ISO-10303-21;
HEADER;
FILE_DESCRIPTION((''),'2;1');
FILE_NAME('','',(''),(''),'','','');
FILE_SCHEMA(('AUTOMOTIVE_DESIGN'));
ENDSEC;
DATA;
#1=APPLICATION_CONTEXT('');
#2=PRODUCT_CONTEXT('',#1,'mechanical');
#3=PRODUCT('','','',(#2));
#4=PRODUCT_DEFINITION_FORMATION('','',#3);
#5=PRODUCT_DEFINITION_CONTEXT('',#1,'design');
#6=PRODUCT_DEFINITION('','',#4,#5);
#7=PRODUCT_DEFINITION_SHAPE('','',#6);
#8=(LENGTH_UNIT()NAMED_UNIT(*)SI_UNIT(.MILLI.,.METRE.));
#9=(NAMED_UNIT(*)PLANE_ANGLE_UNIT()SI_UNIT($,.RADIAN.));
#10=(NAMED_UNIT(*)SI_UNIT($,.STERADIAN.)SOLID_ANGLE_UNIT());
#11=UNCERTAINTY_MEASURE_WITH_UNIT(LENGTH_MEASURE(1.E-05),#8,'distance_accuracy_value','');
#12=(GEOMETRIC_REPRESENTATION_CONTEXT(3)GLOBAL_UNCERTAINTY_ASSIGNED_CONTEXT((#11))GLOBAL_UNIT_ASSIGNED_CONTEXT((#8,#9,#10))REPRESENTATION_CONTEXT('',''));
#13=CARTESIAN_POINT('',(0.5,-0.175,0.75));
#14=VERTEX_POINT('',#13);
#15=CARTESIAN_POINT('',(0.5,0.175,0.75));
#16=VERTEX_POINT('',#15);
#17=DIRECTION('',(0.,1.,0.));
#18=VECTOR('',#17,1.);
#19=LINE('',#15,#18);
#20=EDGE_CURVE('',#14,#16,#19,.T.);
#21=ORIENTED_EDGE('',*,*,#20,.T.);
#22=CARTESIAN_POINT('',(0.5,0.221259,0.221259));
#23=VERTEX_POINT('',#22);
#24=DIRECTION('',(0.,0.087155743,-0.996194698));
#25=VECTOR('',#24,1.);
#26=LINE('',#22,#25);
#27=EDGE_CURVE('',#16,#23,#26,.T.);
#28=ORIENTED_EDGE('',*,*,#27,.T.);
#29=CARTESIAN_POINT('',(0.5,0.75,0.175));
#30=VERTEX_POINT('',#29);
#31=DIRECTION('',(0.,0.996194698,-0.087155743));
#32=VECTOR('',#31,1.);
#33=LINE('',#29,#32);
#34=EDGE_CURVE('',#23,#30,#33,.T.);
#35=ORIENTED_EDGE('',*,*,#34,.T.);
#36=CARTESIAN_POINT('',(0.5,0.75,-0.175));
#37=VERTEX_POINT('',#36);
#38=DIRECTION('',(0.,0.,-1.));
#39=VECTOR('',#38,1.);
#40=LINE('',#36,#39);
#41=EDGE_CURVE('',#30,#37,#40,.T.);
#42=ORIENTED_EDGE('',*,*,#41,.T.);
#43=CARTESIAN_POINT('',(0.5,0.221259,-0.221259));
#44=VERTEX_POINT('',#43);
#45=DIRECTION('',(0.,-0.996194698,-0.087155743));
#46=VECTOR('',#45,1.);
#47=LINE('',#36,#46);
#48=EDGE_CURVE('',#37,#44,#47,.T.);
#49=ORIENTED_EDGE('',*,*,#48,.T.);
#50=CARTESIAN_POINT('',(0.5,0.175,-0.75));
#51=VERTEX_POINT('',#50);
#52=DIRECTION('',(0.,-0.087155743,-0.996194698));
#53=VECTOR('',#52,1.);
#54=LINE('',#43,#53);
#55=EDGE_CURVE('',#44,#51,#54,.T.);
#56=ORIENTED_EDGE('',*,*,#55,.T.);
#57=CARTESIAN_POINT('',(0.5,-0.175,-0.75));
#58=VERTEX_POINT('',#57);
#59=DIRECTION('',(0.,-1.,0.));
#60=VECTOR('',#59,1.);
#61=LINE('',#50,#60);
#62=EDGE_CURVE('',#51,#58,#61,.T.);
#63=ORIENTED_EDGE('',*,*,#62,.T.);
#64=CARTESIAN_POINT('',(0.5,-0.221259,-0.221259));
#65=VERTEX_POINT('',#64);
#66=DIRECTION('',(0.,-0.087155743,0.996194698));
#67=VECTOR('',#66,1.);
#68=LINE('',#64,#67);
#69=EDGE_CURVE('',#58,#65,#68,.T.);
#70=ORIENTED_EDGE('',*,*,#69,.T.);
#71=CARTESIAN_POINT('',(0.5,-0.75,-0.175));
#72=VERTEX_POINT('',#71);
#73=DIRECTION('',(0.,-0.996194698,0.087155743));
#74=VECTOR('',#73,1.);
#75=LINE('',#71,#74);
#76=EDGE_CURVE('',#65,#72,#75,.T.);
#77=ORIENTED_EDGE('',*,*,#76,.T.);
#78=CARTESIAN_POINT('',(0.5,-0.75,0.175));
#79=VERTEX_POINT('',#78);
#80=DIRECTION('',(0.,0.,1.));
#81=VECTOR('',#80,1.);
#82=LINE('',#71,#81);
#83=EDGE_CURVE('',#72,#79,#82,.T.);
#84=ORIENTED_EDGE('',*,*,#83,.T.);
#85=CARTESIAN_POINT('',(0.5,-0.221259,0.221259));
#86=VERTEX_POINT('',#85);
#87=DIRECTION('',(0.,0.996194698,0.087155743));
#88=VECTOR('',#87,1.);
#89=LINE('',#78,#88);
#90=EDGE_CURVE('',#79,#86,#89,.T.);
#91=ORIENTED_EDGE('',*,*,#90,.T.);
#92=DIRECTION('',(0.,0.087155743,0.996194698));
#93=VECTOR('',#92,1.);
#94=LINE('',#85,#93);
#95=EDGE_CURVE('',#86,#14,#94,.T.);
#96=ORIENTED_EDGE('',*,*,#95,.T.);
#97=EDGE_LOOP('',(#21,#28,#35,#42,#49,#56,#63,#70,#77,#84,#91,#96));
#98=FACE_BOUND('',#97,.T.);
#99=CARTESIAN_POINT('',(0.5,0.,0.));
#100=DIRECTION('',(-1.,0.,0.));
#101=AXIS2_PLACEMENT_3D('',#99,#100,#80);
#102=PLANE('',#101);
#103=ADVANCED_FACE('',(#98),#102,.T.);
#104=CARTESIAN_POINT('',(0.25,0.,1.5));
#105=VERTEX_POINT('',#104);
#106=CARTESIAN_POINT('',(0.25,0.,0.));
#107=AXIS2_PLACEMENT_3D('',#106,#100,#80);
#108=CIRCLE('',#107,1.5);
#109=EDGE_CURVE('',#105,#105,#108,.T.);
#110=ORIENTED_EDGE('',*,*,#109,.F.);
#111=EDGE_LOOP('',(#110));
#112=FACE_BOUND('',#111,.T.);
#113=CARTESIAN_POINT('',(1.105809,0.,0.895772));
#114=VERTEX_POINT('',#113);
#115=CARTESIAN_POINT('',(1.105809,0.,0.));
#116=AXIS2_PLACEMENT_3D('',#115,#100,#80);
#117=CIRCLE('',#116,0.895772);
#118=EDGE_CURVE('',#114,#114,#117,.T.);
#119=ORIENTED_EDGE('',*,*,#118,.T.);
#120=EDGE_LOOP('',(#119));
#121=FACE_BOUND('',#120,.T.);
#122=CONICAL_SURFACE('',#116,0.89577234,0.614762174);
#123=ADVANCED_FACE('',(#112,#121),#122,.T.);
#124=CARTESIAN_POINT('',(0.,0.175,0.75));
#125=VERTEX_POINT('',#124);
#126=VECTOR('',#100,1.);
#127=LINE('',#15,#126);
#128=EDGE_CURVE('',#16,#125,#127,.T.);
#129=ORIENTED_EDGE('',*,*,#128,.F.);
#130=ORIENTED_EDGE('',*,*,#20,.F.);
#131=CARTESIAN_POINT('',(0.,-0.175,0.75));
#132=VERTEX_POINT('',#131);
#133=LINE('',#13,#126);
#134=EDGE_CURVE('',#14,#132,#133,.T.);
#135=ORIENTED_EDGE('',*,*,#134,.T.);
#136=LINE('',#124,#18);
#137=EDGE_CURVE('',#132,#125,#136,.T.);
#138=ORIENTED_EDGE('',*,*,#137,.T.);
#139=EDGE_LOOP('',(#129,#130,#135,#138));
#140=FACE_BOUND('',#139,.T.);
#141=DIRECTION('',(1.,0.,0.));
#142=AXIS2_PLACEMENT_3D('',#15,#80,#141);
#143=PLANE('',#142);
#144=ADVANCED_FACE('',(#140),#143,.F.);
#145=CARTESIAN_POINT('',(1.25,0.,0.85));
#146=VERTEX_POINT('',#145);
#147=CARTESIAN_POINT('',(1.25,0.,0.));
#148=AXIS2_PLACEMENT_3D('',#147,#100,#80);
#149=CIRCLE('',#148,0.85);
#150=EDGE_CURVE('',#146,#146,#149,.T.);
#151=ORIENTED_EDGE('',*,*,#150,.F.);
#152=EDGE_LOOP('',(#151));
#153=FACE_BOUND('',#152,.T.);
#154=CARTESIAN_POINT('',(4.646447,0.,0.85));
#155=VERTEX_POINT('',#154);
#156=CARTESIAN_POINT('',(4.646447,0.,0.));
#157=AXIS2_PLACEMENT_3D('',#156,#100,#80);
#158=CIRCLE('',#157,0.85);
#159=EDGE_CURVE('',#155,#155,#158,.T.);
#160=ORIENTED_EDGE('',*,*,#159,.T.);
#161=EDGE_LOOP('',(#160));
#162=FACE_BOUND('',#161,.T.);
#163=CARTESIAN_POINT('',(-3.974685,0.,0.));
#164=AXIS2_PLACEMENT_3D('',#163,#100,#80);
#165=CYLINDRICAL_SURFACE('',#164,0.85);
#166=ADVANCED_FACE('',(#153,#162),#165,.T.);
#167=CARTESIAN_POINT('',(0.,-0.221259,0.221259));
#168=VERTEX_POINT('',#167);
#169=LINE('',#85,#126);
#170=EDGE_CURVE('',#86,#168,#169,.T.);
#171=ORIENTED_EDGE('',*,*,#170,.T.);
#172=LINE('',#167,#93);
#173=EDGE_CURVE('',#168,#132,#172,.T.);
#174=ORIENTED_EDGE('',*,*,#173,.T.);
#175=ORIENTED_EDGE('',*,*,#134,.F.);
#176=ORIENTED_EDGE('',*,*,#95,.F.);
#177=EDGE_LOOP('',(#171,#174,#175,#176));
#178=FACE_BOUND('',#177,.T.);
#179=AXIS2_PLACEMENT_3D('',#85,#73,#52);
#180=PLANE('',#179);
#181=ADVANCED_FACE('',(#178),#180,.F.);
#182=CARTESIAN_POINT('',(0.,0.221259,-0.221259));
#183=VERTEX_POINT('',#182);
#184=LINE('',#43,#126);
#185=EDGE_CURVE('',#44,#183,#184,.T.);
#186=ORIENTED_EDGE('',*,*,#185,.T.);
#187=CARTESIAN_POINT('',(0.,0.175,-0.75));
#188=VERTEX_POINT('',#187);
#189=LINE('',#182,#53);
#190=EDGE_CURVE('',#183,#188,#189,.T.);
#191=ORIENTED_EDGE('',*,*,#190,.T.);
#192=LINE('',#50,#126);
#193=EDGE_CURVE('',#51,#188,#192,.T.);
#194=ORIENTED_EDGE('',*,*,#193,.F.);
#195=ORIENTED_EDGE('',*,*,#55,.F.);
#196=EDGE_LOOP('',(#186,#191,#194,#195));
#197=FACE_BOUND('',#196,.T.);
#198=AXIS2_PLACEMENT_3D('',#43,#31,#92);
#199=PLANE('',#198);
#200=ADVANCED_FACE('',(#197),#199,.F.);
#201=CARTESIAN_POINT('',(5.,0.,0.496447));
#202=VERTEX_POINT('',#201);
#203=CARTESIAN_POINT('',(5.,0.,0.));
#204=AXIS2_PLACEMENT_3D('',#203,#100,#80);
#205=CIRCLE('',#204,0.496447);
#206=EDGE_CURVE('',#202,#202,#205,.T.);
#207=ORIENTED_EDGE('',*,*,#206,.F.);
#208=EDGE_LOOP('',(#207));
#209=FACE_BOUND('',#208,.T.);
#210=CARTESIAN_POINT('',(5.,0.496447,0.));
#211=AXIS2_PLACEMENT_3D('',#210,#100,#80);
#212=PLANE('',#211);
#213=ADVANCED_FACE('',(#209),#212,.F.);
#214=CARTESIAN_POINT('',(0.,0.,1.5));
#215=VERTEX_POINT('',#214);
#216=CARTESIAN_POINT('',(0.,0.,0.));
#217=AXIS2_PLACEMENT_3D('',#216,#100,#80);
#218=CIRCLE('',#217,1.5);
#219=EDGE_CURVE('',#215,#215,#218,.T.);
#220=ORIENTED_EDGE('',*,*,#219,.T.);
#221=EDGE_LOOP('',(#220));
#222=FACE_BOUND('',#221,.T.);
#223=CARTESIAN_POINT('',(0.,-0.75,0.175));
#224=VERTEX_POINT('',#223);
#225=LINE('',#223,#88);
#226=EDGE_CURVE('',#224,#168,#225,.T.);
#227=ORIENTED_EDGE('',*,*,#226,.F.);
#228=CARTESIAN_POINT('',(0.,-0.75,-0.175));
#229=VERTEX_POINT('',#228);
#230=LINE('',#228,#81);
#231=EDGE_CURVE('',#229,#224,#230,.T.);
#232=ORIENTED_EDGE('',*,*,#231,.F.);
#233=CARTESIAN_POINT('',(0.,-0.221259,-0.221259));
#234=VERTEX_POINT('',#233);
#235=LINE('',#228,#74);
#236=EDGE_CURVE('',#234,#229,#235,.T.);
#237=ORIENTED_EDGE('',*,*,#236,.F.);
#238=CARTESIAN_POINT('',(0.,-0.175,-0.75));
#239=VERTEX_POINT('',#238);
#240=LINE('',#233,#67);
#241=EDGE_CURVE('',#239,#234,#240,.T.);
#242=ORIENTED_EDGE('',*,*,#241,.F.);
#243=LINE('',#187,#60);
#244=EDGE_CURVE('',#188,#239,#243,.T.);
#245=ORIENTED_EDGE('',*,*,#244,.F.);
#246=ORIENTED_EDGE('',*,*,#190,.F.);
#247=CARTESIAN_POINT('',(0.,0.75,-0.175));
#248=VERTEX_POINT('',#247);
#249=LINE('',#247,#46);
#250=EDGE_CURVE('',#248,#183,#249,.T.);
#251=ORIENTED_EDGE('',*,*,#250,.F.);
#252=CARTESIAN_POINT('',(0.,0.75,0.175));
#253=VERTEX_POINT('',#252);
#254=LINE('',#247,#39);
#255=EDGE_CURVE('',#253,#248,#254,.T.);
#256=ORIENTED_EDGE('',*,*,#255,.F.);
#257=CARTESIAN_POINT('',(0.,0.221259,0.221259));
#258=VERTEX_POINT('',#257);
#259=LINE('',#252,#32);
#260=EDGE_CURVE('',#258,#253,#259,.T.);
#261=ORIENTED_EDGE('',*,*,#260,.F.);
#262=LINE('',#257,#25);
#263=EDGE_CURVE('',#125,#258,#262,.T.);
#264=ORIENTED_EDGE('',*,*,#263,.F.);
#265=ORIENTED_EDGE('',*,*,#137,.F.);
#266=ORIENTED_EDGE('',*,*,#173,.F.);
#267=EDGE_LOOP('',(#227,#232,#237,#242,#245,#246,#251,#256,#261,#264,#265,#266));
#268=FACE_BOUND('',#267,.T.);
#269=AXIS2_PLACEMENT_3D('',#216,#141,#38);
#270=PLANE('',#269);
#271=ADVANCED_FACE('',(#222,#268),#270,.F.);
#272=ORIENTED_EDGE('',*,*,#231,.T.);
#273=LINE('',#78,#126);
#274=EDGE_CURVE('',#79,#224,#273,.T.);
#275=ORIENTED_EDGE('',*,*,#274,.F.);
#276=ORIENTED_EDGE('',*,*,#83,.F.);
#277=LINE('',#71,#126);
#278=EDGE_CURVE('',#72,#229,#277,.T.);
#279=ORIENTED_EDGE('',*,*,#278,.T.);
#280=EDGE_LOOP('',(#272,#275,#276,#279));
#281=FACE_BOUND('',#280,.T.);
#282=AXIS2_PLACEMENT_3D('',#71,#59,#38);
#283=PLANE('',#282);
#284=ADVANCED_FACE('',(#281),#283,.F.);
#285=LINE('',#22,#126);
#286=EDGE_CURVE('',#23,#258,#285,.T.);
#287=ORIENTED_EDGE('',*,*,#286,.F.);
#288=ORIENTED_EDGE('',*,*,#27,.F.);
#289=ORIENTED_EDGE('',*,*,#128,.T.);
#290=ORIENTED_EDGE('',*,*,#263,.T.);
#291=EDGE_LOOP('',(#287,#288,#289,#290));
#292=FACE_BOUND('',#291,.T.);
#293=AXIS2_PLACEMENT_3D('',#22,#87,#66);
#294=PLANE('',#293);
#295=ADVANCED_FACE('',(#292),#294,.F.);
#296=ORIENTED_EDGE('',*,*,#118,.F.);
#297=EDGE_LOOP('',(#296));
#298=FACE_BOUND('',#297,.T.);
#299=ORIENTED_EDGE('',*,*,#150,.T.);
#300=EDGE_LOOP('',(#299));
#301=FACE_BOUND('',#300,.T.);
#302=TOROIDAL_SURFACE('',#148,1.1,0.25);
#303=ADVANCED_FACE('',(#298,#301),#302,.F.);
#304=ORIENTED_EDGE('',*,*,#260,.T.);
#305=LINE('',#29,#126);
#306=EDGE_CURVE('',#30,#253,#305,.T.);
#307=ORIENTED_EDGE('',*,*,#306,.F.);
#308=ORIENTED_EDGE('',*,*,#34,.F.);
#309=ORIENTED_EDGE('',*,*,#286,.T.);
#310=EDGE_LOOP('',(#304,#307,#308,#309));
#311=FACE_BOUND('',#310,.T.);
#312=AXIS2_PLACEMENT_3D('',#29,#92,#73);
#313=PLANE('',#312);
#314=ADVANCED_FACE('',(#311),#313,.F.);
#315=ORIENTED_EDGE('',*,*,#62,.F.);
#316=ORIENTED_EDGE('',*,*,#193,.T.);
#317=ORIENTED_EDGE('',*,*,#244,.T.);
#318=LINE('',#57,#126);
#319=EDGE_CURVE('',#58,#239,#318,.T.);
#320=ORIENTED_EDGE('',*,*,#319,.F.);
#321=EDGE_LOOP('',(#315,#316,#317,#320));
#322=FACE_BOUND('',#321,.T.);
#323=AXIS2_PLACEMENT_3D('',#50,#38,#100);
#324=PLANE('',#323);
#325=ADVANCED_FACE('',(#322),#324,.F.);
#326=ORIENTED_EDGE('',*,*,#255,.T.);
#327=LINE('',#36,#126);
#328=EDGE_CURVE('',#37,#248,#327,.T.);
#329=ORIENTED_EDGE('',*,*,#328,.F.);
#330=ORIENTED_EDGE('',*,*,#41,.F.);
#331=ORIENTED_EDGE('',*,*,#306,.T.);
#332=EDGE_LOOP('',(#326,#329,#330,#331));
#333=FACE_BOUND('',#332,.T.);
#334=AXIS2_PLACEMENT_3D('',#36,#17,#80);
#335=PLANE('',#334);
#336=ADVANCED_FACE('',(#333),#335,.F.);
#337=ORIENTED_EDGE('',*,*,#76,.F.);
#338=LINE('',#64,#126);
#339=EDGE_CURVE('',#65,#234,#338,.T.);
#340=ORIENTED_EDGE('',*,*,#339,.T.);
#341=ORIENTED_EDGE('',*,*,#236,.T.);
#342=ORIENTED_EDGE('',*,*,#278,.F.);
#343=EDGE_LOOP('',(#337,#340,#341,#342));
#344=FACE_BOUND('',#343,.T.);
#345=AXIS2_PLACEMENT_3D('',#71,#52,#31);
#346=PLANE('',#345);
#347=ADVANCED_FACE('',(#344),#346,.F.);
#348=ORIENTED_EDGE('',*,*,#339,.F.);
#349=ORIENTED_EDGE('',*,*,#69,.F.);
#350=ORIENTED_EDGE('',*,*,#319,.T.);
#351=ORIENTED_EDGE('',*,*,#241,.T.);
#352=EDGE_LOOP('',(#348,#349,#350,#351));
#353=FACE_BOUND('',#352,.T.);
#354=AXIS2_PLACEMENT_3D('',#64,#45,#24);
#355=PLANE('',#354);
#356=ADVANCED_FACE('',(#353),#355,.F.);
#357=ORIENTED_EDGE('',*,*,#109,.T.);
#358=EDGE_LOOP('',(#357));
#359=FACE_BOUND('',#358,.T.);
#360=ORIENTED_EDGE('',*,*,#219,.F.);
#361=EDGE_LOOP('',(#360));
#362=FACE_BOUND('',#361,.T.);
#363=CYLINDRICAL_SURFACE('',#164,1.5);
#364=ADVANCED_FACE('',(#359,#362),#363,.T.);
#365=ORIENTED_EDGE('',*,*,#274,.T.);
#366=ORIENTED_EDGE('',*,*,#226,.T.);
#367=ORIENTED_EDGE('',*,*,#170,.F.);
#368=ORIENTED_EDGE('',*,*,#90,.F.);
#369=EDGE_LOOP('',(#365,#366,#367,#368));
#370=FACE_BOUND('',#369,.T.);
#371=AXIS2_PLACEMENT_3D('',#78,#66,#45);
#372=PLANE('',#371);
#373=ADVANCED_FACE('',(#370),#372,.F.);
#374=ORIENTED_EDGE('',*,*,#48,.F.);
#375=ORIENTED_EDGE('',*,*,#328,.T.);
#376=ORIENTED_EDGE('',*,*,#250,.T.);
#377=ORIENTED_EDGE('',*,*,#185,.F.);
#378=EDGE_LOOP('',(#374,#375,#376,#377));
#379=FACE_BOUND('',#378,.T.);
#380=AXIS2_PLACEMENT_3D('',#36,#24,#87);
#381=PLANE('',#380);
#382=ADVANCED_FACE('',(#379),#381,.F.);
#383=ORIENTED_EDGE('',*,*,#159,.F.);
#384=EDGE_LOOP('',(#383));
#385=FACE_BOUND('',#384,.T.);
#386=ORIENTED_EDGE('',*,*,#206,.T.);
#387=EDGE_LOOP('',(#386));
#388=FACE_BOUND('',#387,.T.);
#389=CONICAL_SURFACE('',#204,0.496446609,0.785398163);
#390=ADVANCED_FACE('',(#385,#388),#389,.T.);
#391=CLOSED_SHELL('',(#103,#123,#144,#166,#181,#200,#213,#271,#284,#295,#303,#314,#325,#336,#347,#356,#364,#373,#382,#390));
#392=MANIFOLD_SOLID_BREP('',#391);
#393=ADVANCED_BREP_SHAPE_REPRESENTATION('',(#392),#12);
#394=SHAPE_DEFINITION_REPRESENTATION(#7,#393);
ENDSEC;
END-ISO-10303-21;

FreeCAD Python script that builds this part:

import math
import FreeCAD as App
import Part
import Sketcher
from FreeCAD import Vector
Q = App.Units.Quantity

doc = App.newDocument("Part")
params = doc.addObject("Spreadsheet::Sheet", "Params")
for row, (alias, value) in enumerate([
    ("sketch1_width", "5 mm"),
    ("sketch1_radius", "0.25 mm"),
    ("sketch1_height", "1.5 mm"),
    ("sketch1_length", "0.5 mm"),
    ("sketch1_width2", "0.25 mm"),
    ("revolution_angle", "360 deg"),
    ("sketch2_width", "0.35 mm"),
    ("pocket1_length", "0.5 mm"),
], start=1):
    params.set(f"A{row}", alias)
    params.set(f"B{row}", "=" + value)
    params.setAlias(f"B{row}", alias)

body = doc.addObject("PartDesign::Body", "Body")

# Sketch on XY plane
sketch1 = body.newObject("Sketcher::SketchObject", "Sketch")
sketch1.AttachmentSupport = (doc.getObject("XY_Plane"), [""])
sketch1.MapMode = "FlatFace"
sketch1.addGeometry([
    Part.LineSegment(Vector(0, 1.5, 0), Vector(0, 0, 0)),  # 0
    Part.LineSegment(Vector(0, 0, 0), Vector(5, 0, 0)),  # 1
    Part.LineSegment(Vector(5, 0, 0), Vector(5, 0.496447, 0)),  # 2
    Part.LineSegment(Vector(5, 0.496447, 0), Vector(4.646447, 0.85, 0)),  # 3
    Part.LineSegment(Vector(4.646447, 0.85, 0), Vector(1.25, 0.85, 0)),  # 4
    Part.ArcOfCircle(Part.Circle(Vector(1.25, 1.1, 0), Vector(0, 0, 1), 0.25), math.radians(-125.223278), math.radians(-90)),  # 5
    Part.LineSegment(Vector(1.105809, 0.895772, 0), Vector(0.25, 1.5, 0)),  # 6
    Part.LineSegment(Vector(0.25, 1.5, 0), Vector(0, 1.5, 0)),  # 7
], False)
sketch1.addConstraint([
    Sketcher.Constraint("Coincident", 0, 2, 1, 1),
    Sketcher.Constraint("Coincident", 1, 2, 2, 1),
    Sketcher.Constraint("Coincident", 2, 2, 3, 1),
    Sketcher.Constraint("Coincident", 3, 2, 4, 1),
    Sketcher.Constraint("Tangent", 4, 2, 5, 2),
    Sketcher.Constraint("Tangent", 5, 1, 6, 1),
    Sketcher.Constraint("Coincident", 6, 2, 7, 1),
    Sketcher.Constraint("Coincident", 7, 2, 0, 1),
    Sketcher.Constraint("Vertical", 0),
    Sketcher.Constraint("Horizontal", 1),
    Sketcher.Constraint("Vertical", 2),
    Sketcher.Constraint("Horizontal", 4),
    Sketcher.Constraint("Horizontal", 7),
    Sketcher.Constraint("Coincident", 0, 2, -1, 1),
    Sketcher.Constraint("DistanceX", 1, 1, 1, 2, Q("5 mm")),
    Sketcher.Constraint("Angle", 3, Q("135 deg")),
    Sketcher.Constraint("Radius", 5, Q("0.25 mm")),
    Sketcher.Constraint("DistanceY", 0, 2, 0, 1, Q("1.5 mm")),
    Sketcher.Constraint("DistanceX", 6, 2, 5, 3, Q("1 mm")),
    Sketcher.Constraint("Distance", 3, Q("0.5 mm")),
    Sketcher.Constraint("DistanceX", 7, 2, 7, 1, Q("0.25 mm")),
    Sketcher.Constraint("DistanceY", -1, 1, 5, 3, Q("1.1 mm")),
])
sketch1.setExpression("Constraints[14]", "Params.sketch1_width")
sketch1.setExpression("Constraints[16]", "Params.sketch1_radius")
sketch1.setExpression("Constraints[17]", "Params.sketch1_height")
sketch1.setExpression("Constraints[19]", "Params.sketch1_length")
sketch1.setExpression("Constraints[20]", "Params.sketch1_width2")
revolution = body.newObject("PartDesign::Revolution", "Revolution")
revolution.Profile = sketch1
revolution.ReferenceAxis = (sketch1, ["H_Axis"])
revolution.setExpression("Angle", "Params.revolution_angle")

# Sketch on YZ plane
sketch2 = body.newObject("Sketcher::SketchObject", "Sketch001")
sketch2.AttachmentSupport = (doc.getObject("YZ_Plane"), [""])
sketch2.MapMode = "FlatFace"
sketch2.addGeometry([
    Part.LineSegment(Vector(0.75, 0.175, 0), Vector(0.75, -0.175, 0)),  # 0
    Part.LineSegment(Vector(0.75, -0.175, 0), Vector(0.221259, -0.221259, 0)),  # 1
    Part.LineSegment(Vector(0.221259, -0.221259, 0), Vector(0.175, -0.75, 0)),  # 2
    Part.LineSegment(Vector(0.175, -0.75, 0), Vector(-0.175, -0.75, 0)),  # 3
    Part.LineSegment(Vector(-0.175, -0.75, 0), Vector(-0.221259, -0.221259, 0)),  # 4
    Part.LineSegment(Vector(-0.221259, -0.221259, 0), Vector(-0.75, -0.175, 0)),  # 5
    Part.LineSegment(Vector(-0.75, -0.175, 0), Vector(-0.75, 0.175, 0)),  # 6
    Part.LineSegment(Vector(-0.75, 0.175, 0), Vector(-0.221259, 0.221259, 0)),  # 7
    Part.LineSegment(Vector(-0.221259, 0.221259, 0), Vector(-0.175, 0.75, 0)),  # 8
    Part.LineSegment(Vector(-0.175, 0.75, 0), Vector(0.175, 0.75, 0)),  # 9
    Part.LineSegment(Vector(0.175, 0.75, 0), Vector(0.221259, 0.221259, 0)),  # 10
    Part.LineSegment(Vector(0.221259, 0.221259, 0), Vector(0.75, 0.175, 0)),  # 11
], False)
sketch2.addConstraint([
    Sketcher.Constraint("Coincident", 0, 2, 1, 1),
    Sketcher.Constraint("Coincident", 1, 2, 2, 1),
    Sketcher.Constraint("Coincident", 2, 2, 3, 1),
    Sketcher.Constraint("Coincident", 3, 2, 4, 1),
    Sketcher.Constraint("Coincident", 4, 2, 5, 1),
    Sketcher.Constraint("Coincident", 5, 2, 6, 1),
    Sketcher.Constraint("Coincident", 6, 2, 7, 1),
    Sketcher.Constraint("Coincident", 7, 2, 8, 1),
    Sketcher.Constraint("Coincident", 8, 2, 9, 1),
    Sketcher.Constraint("Coincident", 9, 2, 10, 1),
    Sketcher.Constraint("Coincident", 10, 2, 11, 1),
    Sketcher.Constraint("Coincident", 11, 2, 0, 1),
    Sketcher.Constraint("Vertical", 0),
    Sketcher.Constraint("Horizontal", 3),
    Sketcher.Constraint("Vertical", 6),
    Sketcher.Constraint("Horizontal", 9),
    Sketcher.Constraint("Symmetric", 0, 2, 6, 2, -1, 1),
    Sketcher.Constraint("Symmetric", 1, 2, 7, 2, -1, 1),
    Sketcher.Constraint("Symmetric", 2, 2, 8, 2, -1, 1),
    Sketcher.Constraint("Symmetric", 4, 2, 10, 2, -1, 1),
    Sketcher.Constraint("Symmetric", 1, 2, 4, 2, -2),
    Sketcher.Constraint("Perpendicular", 1, 4),
    Sketcher.Constraint("Perpendicular", 2, 5),
    Sketcher.Constraint("Perpendicular", 7, 10),
    Sketcher.Constraint("Perpendicular", 8, 11),
    Sketcher.Constraint("Horizontal", 0, 2, 5, 2),
    Sketcher.Constraint("Equal", 9, 0),
    Sketcher.Constraint("Equal", 1, 2),
    Sketcher.Constraint("Angle", 1, Q("-175 deg")),
    Sketcher.Constraint("DistanceX", 3, 2, 3, 1, Q("0.35 mm")),
    Sketcher.Constraint("DistanceX", 5, 2, 0, 2, Q("1.5 mm")),
])
sketch2.setExpression("Constraints[29]", "Params.sketch2_width")
pocket1 = body.newObject("PartDesign::Pocket", "Pocket")
pocket1.Profile = sketch2
pocket1.setExpression("Length", "Params.pocket1_length")
pocket1.Reversed = True

doc.recompute()
